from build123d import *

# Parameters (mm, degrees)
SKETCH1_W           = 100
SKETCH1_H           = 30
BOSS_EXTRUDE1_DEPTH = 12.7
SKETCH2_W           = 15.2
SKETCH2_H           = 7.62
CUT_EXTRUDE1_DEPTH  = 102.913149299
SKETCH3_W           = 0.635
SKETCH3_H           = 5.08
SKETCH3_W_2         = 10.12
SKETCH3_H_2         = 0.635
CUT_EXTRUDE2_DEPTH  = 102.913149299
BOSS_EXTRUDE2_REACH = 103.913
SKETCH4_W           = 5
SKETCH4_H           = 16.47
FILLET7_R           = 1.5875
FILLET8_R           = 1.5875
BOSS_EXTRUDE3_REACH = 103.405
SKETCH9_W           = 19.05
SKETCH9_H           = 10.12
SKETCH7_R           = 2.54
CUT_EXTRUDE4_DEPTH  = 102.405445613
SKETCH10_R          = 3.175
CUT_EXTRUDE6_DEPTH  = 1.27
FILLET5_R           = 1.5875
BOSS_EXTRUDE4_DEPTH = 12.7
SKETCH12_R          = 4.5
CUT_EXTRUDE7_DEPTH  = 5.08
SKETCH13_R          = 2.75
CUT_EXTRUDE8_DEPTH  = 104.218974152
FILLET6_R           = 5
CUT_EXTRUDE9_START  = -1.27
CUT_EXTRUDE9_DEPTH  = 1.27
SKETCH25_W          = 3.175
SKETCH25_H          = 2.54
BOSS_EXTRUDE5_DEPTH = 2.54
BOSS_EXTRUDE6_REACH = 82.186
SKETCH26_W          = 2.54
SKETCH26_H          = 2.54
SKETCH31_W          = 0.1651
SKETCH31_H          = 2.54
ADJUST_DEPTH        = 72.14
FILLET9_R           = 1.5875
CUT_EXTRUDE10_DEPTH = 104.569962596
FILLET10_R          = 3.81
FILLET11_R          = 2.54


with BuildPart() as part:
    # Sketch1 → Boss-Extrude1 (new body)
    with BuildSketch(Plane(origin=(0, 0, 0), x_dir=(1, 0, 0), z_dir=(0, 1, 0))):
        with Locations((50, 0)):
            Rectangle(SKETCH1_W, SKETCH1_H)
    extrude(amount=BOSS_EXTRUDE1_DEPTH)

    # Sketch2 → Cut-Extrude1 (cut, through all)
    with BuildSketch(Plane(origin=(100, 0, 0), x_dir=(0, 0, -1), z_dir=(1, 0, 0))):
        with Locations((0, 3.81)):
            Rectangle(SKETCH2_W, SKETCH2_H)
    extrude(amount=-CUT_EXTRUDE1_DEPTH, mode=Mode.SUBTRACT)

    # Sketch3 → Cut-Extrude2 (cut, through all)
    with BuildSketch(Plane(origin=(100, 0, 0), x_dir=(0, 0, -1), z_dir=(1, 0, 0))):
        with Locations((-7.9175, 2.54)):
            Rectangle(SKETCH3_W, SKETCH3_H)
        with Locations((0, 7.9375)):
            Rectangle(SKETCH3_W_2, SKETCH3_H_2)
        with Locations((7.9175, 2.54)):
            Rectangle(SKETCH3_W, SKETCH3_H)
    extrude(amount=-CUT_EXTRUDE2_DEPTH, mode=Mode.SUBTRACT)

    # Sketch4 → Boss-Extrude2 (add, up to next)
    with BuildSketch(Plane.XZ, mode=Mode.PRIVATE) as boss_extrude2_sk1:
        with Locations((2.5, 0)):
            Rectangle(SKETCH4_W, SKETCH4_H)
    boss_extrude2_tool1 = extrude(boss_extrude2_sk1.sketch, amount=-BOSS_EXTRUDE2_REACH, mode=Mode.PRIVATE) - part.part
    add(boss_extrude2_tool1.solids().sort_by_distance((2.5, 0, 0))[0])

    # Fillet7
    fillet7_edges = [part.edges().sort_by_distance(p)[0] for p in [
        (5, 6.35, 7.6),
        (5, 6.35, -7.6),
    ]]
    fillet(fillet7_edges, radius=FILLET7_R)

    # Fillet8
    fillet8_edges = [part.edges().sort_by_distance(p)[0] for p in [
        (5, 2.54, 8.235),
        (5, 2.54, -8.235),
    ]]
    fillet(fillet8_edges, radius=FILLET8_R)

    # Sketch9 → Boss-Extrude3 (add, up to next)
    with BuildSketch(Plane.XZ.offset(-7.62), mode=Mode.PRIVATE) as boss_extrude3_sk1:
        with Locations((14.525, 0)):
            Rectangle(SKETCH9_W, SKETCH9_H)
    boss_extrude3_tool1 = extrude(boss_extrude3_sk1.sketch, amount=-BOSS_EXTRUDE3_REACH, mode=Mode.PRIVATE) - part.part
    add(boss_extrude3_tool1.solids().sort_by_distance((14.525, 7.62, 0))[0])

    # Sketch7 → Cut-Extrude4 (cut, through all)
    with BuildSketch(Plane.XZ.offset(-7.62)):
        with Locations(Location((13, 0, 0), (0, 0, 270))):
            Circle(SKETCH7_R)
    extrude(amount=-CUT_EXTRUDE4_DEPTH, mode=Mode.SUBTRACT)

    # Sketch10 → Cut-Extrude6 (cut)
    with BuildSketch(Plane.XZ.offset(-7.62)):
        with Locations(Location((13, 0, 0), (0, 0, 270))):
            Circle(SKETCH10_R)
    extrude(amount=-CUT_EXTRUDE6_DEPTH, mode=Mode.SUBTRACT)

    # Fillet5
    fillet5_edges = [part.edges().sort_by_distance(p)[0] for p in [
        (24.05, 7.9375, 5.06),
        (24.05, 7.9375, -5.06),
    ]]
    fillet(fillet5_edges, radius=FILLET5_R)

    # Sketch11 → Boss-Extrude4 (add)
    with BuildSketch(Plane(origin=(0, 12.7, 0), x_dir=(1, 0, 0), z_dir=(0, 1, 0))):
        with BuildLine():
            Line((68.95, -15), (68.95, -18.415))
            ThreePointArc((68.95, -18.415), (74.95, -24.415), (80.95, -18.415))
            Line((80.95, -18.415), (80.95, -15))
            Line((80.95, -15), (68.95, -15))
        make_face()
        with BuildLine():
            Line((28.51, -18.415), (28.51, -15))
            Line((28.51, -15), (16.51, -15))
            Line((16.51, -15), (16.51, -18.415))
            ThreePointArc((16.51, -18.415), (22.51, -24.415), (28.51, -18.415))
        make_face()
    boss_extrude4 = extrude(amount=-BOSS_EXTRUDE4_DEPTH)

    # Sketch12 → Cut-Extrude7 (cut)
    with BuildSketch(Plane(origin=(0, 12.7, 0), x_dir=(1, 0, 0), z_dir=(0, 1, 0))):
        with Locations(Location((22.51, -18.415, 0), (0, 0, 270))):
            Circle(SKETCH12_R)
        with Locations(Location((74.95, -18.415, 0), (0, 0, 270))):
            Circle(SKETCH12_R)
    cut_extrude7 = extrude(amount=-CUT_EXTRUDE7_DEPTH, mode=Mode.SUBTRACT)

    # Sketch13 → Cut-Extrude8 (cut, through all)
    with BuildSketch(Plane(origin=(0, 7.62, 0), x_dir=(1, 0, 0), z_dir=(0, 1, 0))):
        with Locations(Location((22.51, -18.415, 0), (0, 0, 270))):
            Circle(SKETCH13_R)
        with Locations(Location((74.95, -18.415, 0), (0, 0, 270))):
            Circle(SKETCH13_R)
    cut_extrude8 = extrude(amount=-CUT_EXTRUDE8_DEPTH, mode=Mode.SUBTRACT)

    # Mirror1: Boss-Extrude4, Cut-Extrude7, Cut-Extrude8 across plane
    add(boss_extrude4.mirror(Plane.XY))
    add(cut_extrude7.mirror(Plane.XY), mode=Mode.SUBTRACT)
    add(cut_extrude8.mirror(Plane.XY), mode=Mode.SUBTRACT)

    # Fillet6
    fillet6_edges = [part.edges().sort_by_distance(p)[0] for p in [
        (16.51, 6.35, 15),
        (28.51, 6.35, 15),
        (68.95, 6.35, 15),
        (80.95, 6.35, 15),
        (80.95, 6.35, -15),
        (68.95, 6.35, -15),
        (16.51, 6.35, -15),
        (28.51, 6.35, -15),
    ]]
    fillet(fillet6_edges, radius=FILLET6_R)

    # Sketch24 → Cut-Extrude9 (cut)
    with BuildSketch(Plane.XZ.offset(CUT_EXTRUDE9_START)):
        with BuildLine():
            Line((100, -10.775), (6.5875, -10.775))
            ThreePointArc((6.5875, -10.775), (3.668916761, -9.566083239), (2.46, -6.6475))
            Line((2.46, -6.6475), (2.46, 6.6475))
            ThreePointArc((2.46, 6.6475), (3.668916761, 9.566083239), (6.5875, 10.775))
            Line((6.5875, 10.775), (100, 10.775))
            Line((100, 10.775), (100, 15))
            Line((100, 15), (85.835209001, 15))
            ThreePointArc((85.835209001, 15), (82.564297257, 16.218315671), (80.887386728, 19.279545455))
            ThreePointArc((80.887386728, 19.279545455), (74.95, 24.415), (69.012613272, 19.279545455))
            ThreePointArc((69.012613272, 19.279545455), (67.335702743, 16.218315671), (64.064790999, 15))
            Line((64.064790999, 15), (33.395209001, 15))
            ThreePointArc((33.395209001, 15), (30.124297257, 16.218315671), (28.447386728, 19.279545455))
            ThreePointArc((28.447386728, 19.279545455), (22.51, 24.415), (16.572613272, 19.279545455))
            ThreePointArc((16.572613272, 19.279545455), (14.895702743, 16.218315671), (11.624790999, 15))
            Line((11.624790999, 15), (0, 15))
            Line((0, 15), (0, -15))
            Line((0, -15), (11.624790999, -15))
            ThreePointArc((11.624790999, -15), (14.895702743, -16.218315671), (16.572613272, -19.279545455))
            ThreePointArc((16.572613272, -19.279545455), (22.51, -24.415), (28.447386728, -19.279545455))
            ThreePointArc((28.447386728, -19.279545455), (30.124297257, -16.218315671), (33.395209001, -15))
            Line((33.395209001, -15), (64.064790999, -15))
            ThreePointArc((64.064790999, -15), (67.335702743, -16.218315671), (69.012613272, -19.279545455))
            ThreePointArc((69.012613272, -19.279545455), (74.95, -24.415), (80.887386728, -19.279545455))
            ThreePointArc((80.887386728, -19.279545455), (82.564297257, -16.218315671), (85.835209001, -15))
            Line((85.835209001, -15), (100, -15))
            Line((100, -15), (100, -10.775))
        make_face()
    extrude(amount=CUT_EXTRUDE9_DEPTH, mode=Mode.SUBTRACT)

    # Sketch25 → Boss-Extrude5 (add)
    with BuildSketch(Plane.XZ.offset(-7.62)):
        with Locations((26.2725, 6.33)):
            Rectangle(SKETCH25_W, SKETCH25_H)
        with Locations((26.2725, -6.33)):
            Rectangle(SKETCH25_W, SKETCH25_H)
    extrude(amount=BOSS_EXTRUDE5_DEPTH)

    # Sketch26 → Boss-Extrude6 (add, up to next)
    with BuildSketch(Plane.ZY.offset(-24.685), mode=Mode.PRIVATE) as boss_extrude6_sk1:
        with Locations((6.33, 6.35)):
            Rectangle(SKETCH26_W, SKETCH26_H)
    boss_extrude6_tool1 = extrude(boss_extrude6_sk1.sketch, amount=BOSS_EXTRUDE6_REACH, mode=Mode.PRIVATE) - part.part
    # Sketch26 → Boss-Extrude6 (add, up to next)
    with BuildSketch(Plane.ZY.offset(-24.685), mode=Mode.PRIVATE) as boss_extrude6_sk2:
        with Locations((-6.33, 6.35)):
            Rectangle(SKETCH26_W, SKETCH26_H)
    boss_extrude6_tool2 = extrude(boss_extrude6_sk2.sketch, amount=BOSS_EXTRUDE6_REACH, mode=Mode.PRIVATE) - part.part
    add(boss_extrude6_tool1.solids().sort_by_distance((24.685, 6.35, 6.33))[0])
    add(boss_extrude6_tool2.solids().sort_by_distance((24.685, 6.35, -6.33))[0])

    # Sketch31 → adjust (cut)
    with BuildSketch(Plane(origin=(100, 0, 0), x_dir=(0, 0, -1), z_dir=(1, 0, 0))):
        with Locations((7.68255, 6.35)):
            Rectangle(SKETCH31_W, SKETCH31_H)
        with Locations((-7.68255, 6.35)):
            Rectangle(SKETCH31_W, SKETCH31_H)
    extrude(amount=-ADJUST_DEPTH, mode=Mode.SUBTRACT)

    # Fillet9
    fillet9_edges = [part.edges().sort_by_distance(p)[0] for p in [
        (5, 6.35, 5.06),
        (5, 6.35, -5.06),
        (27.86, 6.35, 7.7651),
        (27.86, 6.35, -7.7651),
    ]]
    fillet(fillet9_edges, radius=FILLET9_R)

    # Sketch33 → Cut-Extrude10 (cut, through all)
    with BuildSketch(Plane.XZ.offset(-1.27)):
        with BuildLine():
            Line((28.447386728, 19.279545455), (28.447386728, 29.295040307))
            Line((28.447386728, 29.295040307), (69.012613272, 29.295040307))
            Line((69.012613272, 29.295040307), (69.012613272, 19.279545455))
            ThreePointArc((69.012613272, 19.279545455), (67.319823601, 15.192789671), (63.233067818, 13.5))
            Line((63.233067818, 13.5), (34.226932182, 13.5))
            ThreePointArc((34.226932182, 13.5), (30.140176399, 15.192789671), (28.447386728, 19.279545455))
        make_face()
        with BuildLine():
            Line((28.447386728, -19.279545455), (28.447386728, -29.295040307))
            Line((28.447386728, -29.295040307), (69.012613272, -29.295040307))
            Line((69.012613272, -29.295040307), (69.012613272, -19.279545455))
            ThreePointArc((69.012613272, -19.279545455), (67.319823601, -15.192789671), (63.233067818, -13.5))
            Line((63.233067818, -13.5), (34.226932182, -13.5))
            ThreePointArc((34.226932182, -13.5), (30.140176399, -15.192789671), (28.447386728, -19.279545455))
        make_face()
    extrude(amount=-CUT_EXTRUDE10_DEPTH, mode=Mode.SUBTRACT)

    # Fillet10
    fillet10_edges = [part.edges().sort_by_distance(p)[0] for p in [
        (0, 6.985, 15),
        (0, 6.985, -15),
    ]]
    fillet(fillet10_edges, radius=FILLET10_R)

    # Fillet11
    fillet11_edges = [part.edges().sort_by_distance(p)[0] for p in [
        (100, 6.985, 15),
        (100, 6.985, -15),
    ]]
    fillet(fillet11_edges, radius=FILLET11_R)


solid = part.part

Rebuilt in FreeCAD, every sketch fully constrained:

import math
import FreeCAD as App
import Part
import Sketcher

V = App.Vector
Q = App.Units.Quantity


def edges_at(feature, points):
    """Names of the edges that pass closest to the given points."""
    edges = feature.Shape.Edges
    near = lambda p: min(range(len(edges)), key=lambda i: edges[i].distToShape(Part.Vertex(*p))[0])
    return sorted({f"Edge{near(p) + 1}" for p in points})

doc = App.newDocument("Part")
params = doc.addObject("Spreadsheet::Sheet", "Params")
for row, (alias, value) in enumerate([
    ("pad1_length", "0.5 in"),
    ("sketch2_width", "0.3 in"),
    ("sketch3_width", "0.2 in"),
    ("sketch3_width2", "0.025 in"),
    ("fillet_radius", "0.0625 in"),
    ("fillet2_radius", "0.0625 in"),
    ("sketch5_width", "0.75 in"),
    ("sketch6_diameter", "0.2 in"),
    ("sketch7_diameter", "0.25 in"),
    ("pocket4_length", "0.05 in"),
    ("fillet3_radius", "0.0625 in"),
    ("pad4_length", "0.5 in"),
    ("pocket5_length", "0.2 in"),
    ("fillet4_radius", "5 mm"),
    ("pocket7_length", "0.05 in"),
    ("sketch12_height", "0.1 in"),
    ("sketch12_width", "0.125 in"),
    ("pad5_length", "0.1 in"),
    ("sketch13_width", "0.1 in"),
    ("sketch14_width", "0.1 in"),
    ("sketch15_width", "0.1 in"),
    ("pocket8_length", "72.14 mm"),
    ("fillet5_radius", "0.0625 in"),
    ("fillet6_radius", "0.15 in"),
    ("fillet7_radius", "0.1 in"),
], start=1):
    params.set(f"A{row}", alias)
    params.set(f"B{row}", "=" + value)
    params.setAlias(f"B{row}", alias)

body = doc.addObject("PartDesign::Body", "Body")

sketch1 = doc.addObject("Sketcher::SketchObject", "Sketch")
body.addObject(sketch1)
sketch1.AttachmentSupport = (doc.XZ_Plane, [""])
sketch1.MapMode = "FlatFace"
sketch1.addGeometry([
    Part.LineSegment(V(0, -15, 0), V(0, 15, 0)),
    Part.LineSegment(V(0, 15, 0), V(100, 15, 0)),
    Part.LineSegment(V(100, 15, 0), V(100, -15, 0)),
    Part.LineSegment(V(100, -15, 0), V(0, -15, 0)),
], False)
sketch1.addConstraint([
    Sketcher.Constraint("Coincident", 0, 2, 1, 1),
    Sketcher.Constraint("Coincident", 1, 2, 2, 1),
    Sketcher.Constraint("Coincident", 2, 2, 3, 1),
    Sketcher.Constraint("Coincident", 3, 2, 0, 1),
    Sketcher.Constraint("Vertical", 0),
    Sketcher.Constraint("Horizontal", 1),
    Sketcher.Constraint("Vertical", 2),
    Sketcher.Constraint("Horizontal", 3),
    Sketcher.Constraint("Symmetric", 0, 2, 3, 2, -1, 1),
    Sketcher.Constraint("DistanceX", 1, 1, 1, 2, Q("100 mm")),
    Sketcher.Constraint("DistanceY", 0, 1, 0, 2, Q("30 mm")),
])
pad1 = doc.addObject("PartDesign::Pad", "Pad")
body.addObject(pad1)
pad1.Profile = sketch1
pad1.setExpression("Length", "Params.pad1_length")
pad1.Reversed = True

sketch2 = doc.addObject("Sketcher::SketchObject", "Sketch001")
body.addObject(sketch2)
sketch2.AttachmentSupport = (doc.YZ_Plane, [""])
sketch2.MapMode = "FlatFace"
sketch2.AttachmentOffset = App.Placement(V(0, 0, 100), App.Rotation())
sketch2.addGeometry([
    Part.LineSegment(V(8, 8, 0), V(0, 8, 0)),
    Part.LineSegment(V(0, 8, 0), V(0, -8, 0)),
    Part.LineSegment(V(0, -8, 0), V(8, -8, 0)),
    Part.LineSegment(V(8, -8, 0), V(8, 8, 0)),
], False)
sketch2.addConstraint([
    Sketcher.Constraint("Coincident", 0, 2, 1, 1),
    Sketcher.Constraint("Coincident", 1, 2, 2, 1),
    Sketcher.Constraint("Coincident", 2, 2, 3, 1),
    Sketcher.Constraint("Coincident", 3, 2, 0, 1),
    Sketcher.Constraint("Horizontal", 0),
    Sketcher.Constraint("Vertical", 1),
    Sketcher.Constraint("Horizontal", 2),
    Sketcher.Constraint("Vertical", 3),
    Sketcher.Constraint("Symmetric", 0, 2, 1, 2, -1, 1),
    Sketcher.Constraint("DistanceX", 0, 2, 0, 1, Q("0.3 in")),
    Sketcher.Constraint("DistanceY", 1, 2, 1, 1, Q("15.2 mm")),
])
sketch2.setExpression("Constraints[9]", "Params.sketch2_width")
pocket1 = doc.addObject("PartDesign::Pocket", "Pocket")
body.addObject(pocket1)
pocket1.Profile = sketch2
pocket1.Type = "ThroughAll"

sketch3 = doc.addObject("Sketcher::SketchObject", "Sketch002")
body.addObject(sketch3)
sketch3.AttachmentSupport = (doc.YZ_Plane, [""])
sketch3.MapMode = "FlatFace"
sketch3.AttachmentOffset = App.Placement(V(0, 0, 100), App.Rotation())
sketch3.addGeometry([
    Part.LineSegment(V(5.1, 8.2, 0), V(0, 8.2, 0)),
    Part.LineSegment(V(0, 8.2, 0), V(0, 7.6, 0)),
    Part.LineSegment(V(0, 7.6, 0), V(5.1, 7.6, 0)),
    Part.LineSegment(V(5.1, 7.6, 0), V(5.1, 8.2, 0)),
    Part.LineSegment(V(8.3, 5.1, 0), V(7.6, 5.1, 0)),
    Part.LineSegment(V(7.6, 5.1, 0), V(7.6, -5.1, 0)),
    Part.LineSegment(V(7.6, -5.1, 0), V(8.3, -5.1, 0)),
    Part.LineSegment(V(8.3, -5.1, 0), V(8.3, 5.1, 0)),
    Part.LineSegment(V(5.1, -7.6, 0), V(0, -7.6, 0)),
    Part.LineSegment(V(0, -7.6, 0), V(0, -8.2, 0)),
    Part.LineSegment(V(0, -8.2, 0), V(5.1, -8.2, 0)),
    Part.LineSegment(V(5.1, -8.2, 0), V(5.1, -7.6, 0)),
], False)
sketch3.addConstraint([
    Sketcher.Constraint("Coincident", 0, 2, 1, 1),
    Sketcher.Constraint("Coincident", 1, 2, 2, 1),
    Sketcher.Constraint("Coincident", 2, 2, 3, 1),
    Sketcher.Constraint("Coincident", 3, 2, 0, 1),
    Sketcher.Constraint("Coincident", 4, 2, 5, 1),
    Sketcher.Constraint("Coincident", 5, 2, 6, 1),
    Sketcher.Constraint("Coincident", 6, 2, 7, 1),
    Sketcher.Constraint("Coincident", 7, 2, 4, 1),
    Sketcher.Constraint("Coincident", 8, 2, 9, 1),
    Sketcher.Constraint("Coincident", 9, 2, 10, 1),
    Sketcher.Constraint("Coincident", 10, 2, 11, 1),
    Sketcher.Constraint("Coincident", 11, 2, 8, 1),
    Sketcher.Constraint("Horizontal", 0),
    Sketcher.Constraint("Vertical", 1),
    Sketcher.Constraint("Horizontal", 2),
    Sketcher.Constraint("Vertical", 3),
    Sketcher.Constraint("Horizontal", 4),
    Sketcher.Constraint("Vertical", 5),
    Sketcher.Constraint("Horizontal", 6),
    Sketcher.Constraint("Vertical", 7),
    Sketcher.Constraint("Horizontal", 8),
    Sketcher.Constraint("Vertical", 9),
    Sketcher.Constraint("Horizontal", 10),
    Sketcher.Constraint("Vertical", 11),
    Sketcher.Constraint("Symmetric", 1, 2, 8, 2, -1, 1),
    Sketcher.Constraint("Symmetric", 0, 2, 9, 2, -1),
    Sketcher.Constraint("Vertical", 3, 2, 10, 2),
    Sketcher.Constraint("Equal", 6, 1),
    Sketcher.Constraint("DistanceX", 0, 2, 0, 1, Q("0.2 in")),
    Sketcher.Constraint("DistanceX", -1, 1, 4, 2, Q("0.3 in")),
    Sketcher.Constraint("DistanceY", 4, 2, 2, 2, Q("0.1 in")),
    Sketcher.Constraint("DistanceY", 8, 2, 5, 2, Q("0.1 in")),
    Sketcher.Constraint("DistanceX", 4, 2, 4, 1, Q("0.025 in")),
    Sketcher.Constraint("DistanceY", 5, 2, 5, 1, Q("10.12 mm")),
])
sketch3.setExpression("Constraints[28]", "Params.sketch3_width")
sketch3.setExpression("Constraints[32]", "Params.sketch3_width2")
pocket2 = doc.addObject("PartDesign::Pocket", "Pocket001")
body.addObject(pocket2)
pocket2.Profile = sketch3
pocket2.Type = "ThroughAll"

sketch4 = doc.addObject("Sketcher::SketchObject", "Sketch003")
body.addObject(sketch4)
sketch4.AttachmentSupport = (doc.XZ_Plane, [""])
sketch4.MapMode = "FlatFace"
sketch4.addGeometry([
    Part.LineSegment(V(0, 8, 0), V(0, -8, 0)),
    Part.LineSegment(V(0, -8, 0), V(5, -8, 0)),
    Part.LineSegment(V(5, -8, 0), V(5, 8, 0)),
    Part.LineSegment(V(5, 8, 0), V(0, 8, 0)),
], False)
sketch4.addConstraint([
    Sketcher.Constraint("Coincident", 0, 2, 1, 1),
    Sketcher.Constraint("Coincident", 1, 2, 2, 1),
    Sketcher.Constraint("Coincident", 2, 2, 3, 1),
    Sketcher.Constraint("Coincident", 3, 2, 0, 1),
    Sketcher.Constraint("Vertical", 0),
    Sketcher.Constraint("Horizontal", 1),
    Sketcher.Constraint("Vertical", 2),
    Sketcher.Constraint("Horizontal", 3),
    Sketcher.Constraint("Symmetric", 0, 2, 3, 2, -1, 1),
    Sketcher.Constraint("DistanceX", 1, 1, 1, 2, Q("5 mm")),
    Sketcher.Constraint("DistanceY", 0, 2, 0, 1, Q("16.47 mm")),
])
pad2 = doc.addObject("PartDesign::Pad", "Pad001")
body.addObject(pad2)
pad2.Profile = sketch4
pad2.Type = "UpToFirst"
pad2.Reversed = True
doc.recompute()

fillet = doc.addObject("PartDesign::Fillet", "Fillet")
body.addObject(fillet)
fillet.Base = (pad2, edges_at(pad2, [(5, 6.35, 7.6), (5, 6.35, -7.6)]))
fillet.setExpression("Radius", "Params.fillet_radius")
doc.recompute()

fillet2 = doc.addObject("PartDesign::Fillet", "Fillet001")
body.addObject(fillet2)
fillet2.Base = (fillet, edges_at(fillet, [(5, 2.54, 8.235), (5, 2.54, -8.235)]))
fillet2.setExpression("Radius", "Params.fillet2_radius")

sketch5 = doc.addObject("Sketcher::SketchObject", "Sketch004")
body.addObject(sketch5)
sketch5.AttachmentSupport = (doc.XZ_Plane, [""])
sketch5.MapMode = "FlatFace"
sketch5.AttachmentOffset = App.Placement(V(0, 0, -0.3 * 25.4), App.Rotation())
sketch5.addGeometry([
    Part.LineSegment(V(5, 5, 0), V(5, -5, 0)),
    Part.LineSegment(V(5, -5, 0), V(24, -5, 0)),
    Part.LineSegment(V(24, -5, 0), V(24, 5, 0)),
    Part.LineSegment(V(24, 5, 0), V(5, 5, 0)),
], False)
sketch5.addConstraint([
    Sketcher.Constraint("Coincident", 0, 2, 1, 1),
    Sketcher.Constraint("Coincident", 1, 2, 2, 1),
    Sketcher.Constraint("Coincident", 2, 2, 3, 1),
    Sketcher.Constraint("Coincident", 3, 2, 0, 1),
    Sketcher.Constraint("Vertical", 0),
    Sketcher.Constraint("Horizontal", 1),
    Sketcher.Constraint("Vertical", 2),
    Sketcher.Constraint("Horizontal", 3),
    Sketcher.Constraint("DistanceX", 1, 1, 1, 2, Q("0.75 in")),
    Sketcher.Constraint("DistanceY", 0, 2, 0, 1, Q("10.12 mm")),
    Sketcher.Constraint("DistanceX", -1, 1, 0, 2, Q("5 mm")),
    Sketcher.Constraint("DistanceY", 0, 2, -1, 1, Q("5.06 mm")),
])
sketch5.setExpression("Constraints[8]", "Params.sketch5_width")
pad3 = doc.addObject("PartDesign::Pad", "Pad002")
body.addObject(pad3)
pad3.Profile = sketch5
pad3.Type = "UpToFirst"
pad3.Reversed = True

sketch6 = doc.addObject("Sketcher::SketchObject", "Sketch005")
body.addObject(sketch6)
sketch6.AttachmentSupport = (doc.XZ_Plane, [""])
sketch6.MapMode = "FlatFace"
sketch6.AttachmentOffset = App.Placement(V(0, 0, -0.3 * 25.4), App.Rotation())
sketch6.addGeometry(Part.Circle(V(13, 0, 0), V(0, 0, 1), 2.5), False)
sketch6.addConstraint([
    Sketcher.Constraint("PointOnObject", 0, 3, -1),
    Sketcher.Constraint("Diameter", 0, Q("0.2 in")),
    Sketcher.Constraint("DistanceX", -1, 1, 0, 3, Q("13 mm")),
])
sketch6.setExpression("Constraints[1]", "Params.sketch6_diameter")
pocket3 = doc.addObject("PartDesign::Pocket", "Pocket002")
body.addObject(pocket3)
pocket3.Profile = sketch6
pocket3.Type = "ThroughAll"

sketch7 = doc.addObject("Sketcher::SketchObject", "Sketch006")
body.addObject(sketch7)
sketch7.AttachmentSupport = (doc.XZ_Plane, [""])
sketch7.MapMode = "FlatFace"
sketch7.AttachmentOffset = App.Placement(V(0, 0, -0.3 * 25.4), App.Rotation())
sketch7.addGeometry(Part.Circle(V(13, 0, 0), V(0, 0, 1), 3.2), False)
sketch7.addConstraint([
    Sketcher.Constraint("PointOnObject", 0, 3, -1),
    Sketcher.Constraint("Diameter", 0, Q("0.25 in")),
    Sketcher.Constraint("DistanceX", -1, 1, 0, 3, Q("13 mm")),
])
sketch7.setExpression("Constraints[1]", "Params.sketch7_diameter")
pocket4 = doc.addObject("PartDesign::Pocket", "Pocket003")
body.addObject(pocket4)
pocket4.Profile = sketch7
pocket4.setExpression("Length", "Params.pocket4_length")
doc.recompute()

fillet3 = doc.addObject("PartDesign::Fillet", "Fillet002")
body.addObject(fillet3)
fillet3.Base = (pocket4, edges_at(pocket4, [(24.05, 7.938, 5.06), (24.05, 7.938, -5.06)]))
fillet3.setExpression("Radius", "Params.fillet3_radius")

sketch8 = doc.addObject("Sketcher::SketchObject", "Sketch007")
body.addObject(sketch8)
sketch8.AttachmentSupport = (doc.XZ_Plane, [""])
sketch8.MapMode = "FlatFace"
sketch8.AttachmentOffset = App.Placement(V(0, 0, -0.5 * 25.4), App.Rotation())
sketch8.addGeometry([
    Part.LineSegment(V(69, 15, 0), V(69, 18.4, 0)),
    Part.ArcOfCircle(Part.Circle(V(75, 18.4, 0), V(0, 0, 1), 6), math.radians(0), math.radians(180)),
    Part.LineSegment(V(81, 18.4, 0), V(81, 15, 0)),
    Part.LineSegment(V(81, 15, 0), V(69, 15, 0)),
    Part.LineSegment(V(28.5, 18.4, 0), V(28.5, 15, 0)),
    Part.LineSegment(V(28.5, 15, 0), V(16.5, 15, 0)),
    Part.LineSegment(V(16.5, 15, 0), V(16.5, 18.4, 0)),
    Part.ArcOfCircle(Part.Circle(V(22.5, 18.4, 0), V(0, 0, 1), 6), math.radians(0), math.radians(180)),
], False)
sketch8.addConstraint([
    Sketcher.Constraint("Tangent", 0, 2, 1, 2),
    Sketcher.Constraint("Tangent", 1, 1, 2, 1),
    Sketcher.Constraint("Coincident", 2, 2, 3, 1),
    Sketcher.Constraint("Coincident", 3, 2, 0, 1),
    Sketcher.Constraint("Coincident", 4, 2, 5, 1),
    Sketcher.Constraint("Coincident", 5, 2, 6, 1),
    Sketcher.Constraint("Tangent", 6, 2, 7, 2),
    Sketcher.Constraint("Tangent", 7, 1, 4, 1),
    Sketcher.Constraint("Vertical", 0),
    Sketcher.Constraint("Vertical", 2),
    Sketcher.Constraint("Horizontal", 3),
    Sketcher.Constraint("Vertical", 4),
    Sketcher.Constraint("Horizontal", 5),
    Sketcher.Constraint("Vertical", 6),
    Sketcher.Constraint("Equal", 1, 7),
    Sketcher.Constraint("Horizontal", 1, 3, 7, 3),
    Sketcher.Constraint("Horizontal", 3, 2, 4, 2),
    Sketcher.Constraint("DistanceX", -1, 1, 5, 2, Q("0.65 in")),
    Sketcher.Constraint("Radius", 1, Q("6 mm")),
    Sketcher.Constraint("DistanceY", -1, 1, 1, 3, Q("0.725 in")),
    Sketcher.Constraint("DistanceY", 0, 1, 0, 2, Q("3.415 mm")),
    Sketcher.Constraint("DistanceX", -1, 1, 1, 3, Q("74.95 mm")),
])
pad4 = doc.addObject("PartDesign::Pad", "Pad003")
body.addObject(pad4)
pad4.Profile = sketch8
pad4.setExpression("Length", "Params.pad4_length")

sketch9 = doc.addObject("Sketcher::SketchObject", "Sketch008")
body.addObject(sketch9)
sketch9.AttachmentSupport = (doc.XZ_Plane, [""])
sketch9.MapMode = "FlatFace"
sketch9.AttachmentOffset = App.Placement(V(0, 0, -0.5 * 25.4), App.Rotation())
sketch9.addGeometry([
    Part.Circle(V(22.5, 18.4, 0), V(0, 0, 1), 4.5),
    Part.Circle(V(75, 18.4, 0), V(0, 0, 1), 4.5),
], False)
sketch9.addConstraint([
    Sketcher.Constraint("Equal", 0, 1),
    Sketcher.Constraint("Horizontal", 0, 3, 1, 3),
    Sketcher.Constraint("Diameter", 0, Q("9 mm")),
    Sketcher.Constraint("DistanceY", -1, 1, 0, 3, Q("0.725 in")),
    Sketcher.Constraint("DistanceX", -1, 1, 0, 3, Q("22.51 mm")),
    Sketcher.Constraint("DistanceX", -1, 1, 1, 3, Q("74.95 mm")),
])
pocket5 = doc.addObject("PartDesign::Pocket", "Pocket004")
body.addObject(pocket5)
pocket5.Profile = sketch9
pocket5.setExpression("Length", "Params.pocket5_length")
pocket5.Reversed = True

sketch10 = doc.addObject("Sketcher::SketchObject", "Sketch009")
body.addObject(sketch10)
sketch10.AttachmentSupport = (doc.XZ_Plane, [""])
sketch10.MapMode = "FlatFace"
sketch10.AttachmentOffset = App.Placement(V(0, 0, -0.3 * 25.4), App.Rotation())
sketch10.addGeometry([
    Part.Circle(V(22.5, 18.4, 0), V(0, 0, 1), 2.8),
    Part.Circle(V(75, 18.4, 0), V(0, 0, 1), 2.8),
], False)
sketch10.addConstraint([
    Sketcher.Constraint("Equal", 0, 1),
    Sketcher.Constraint("Horizontal", 0, 3, 1, 3),
    Sketcher.Constraint("Diameter", 0, Q("5.5 mm")),
    Sketcher.Constraint("DistanceY", -1, 1, 0, 3, Q("0.725 in")),
    Sketcher.Constraint("DistanceX", -1, 1, 0, 3, Q("22.51 mm")),
    Sketcher.Constraint("DistanceX", -1, 1, 1, 3, Q("74.95 mm")),
])
pocket6 = doc.addObject("PartDesign::Pocket", "Pocket005")
body.addObject(pocket6)
pocket6.Profile = sketch10
pocket6.Type = "ThroughAll"
pocket6.Reversed = True
doc.recompute()

mirrored = doc.addObject("PartDesign::Mirrored", "Mirrored")
body.addObject(mirrored)
mirrored.Originals = [pad4, pocket5, pocket6]
mirrored.MirrorPlane = (doc.XY_Plane, [""])
body.Tip = mirrored
doc.recompute()

fillet4 = doc.addObject("PartDesign::Fillet", "Fillet003")
body.addObject(fillet4)
fillet4.Base = (mirrored, edges_at(mirrored, [
    (16.51, 6.35, 15),
    (28.51, 6.35, 15),
    (68.95, 6.35, 15),
    (80.95, 6.35, 15),
    (80.95, 6.35, -15),
    (68.95, 6.35, -15),
    (16.51, 6.35, -15),
    (28.51, 6.35, -15),
]))
fillet4.setExpression("Radius", "Params.fillet4_radius")

sketch11 = doc.addObject("Sketcher::SketchObject", "Sketch010")
body.addObject(sketch11)
sketch11.AttachmentSupport = (doc.XZ_Plane, [""])
sketch11.MapMode = "FlatFace"
sketch11.AttachmentOffset = App.Placement(V(0, 0, -0.05 * 25.4), App.Rotation())
sketch11.addGeometry([
    Part.LineSegment(V(100, -10.8, 0), V(6.6, -10.8, 0)),
    Part.ArcOfCircle(Part.Circle(V(6.6, -6.6, 0), V(0, 0, 1), 4.1), math.radians(-180), math.radians(-90)),
    Part.LineSegment(V(2.5, -6.6, 0), V(2.5, 6.6, 0)),
    Part.ArcOfCircle(Part.Circle(V(6.6, 6.6, 0), V(0, 0, 1), 4.1), math.radians(90), math.radians(180)),
    Part.LineSegment(V(6.6, 10.8, 0), V(100, 10.8, 0)),
    Part.LineSegment(V(100, 10.8, 0), V(100, 15, 0)),
    Part.LineSegment(V(100, 15, 0), V(85.8, 15, 0)),
    Part.ArcOfCircle(Part.Circle(V(85.8, 20, 0), V(0, 0, 1), 5), math.radians(-172), math.radians(-90)),
    Part.ArcOfCircle(Part.Circle(V(75, 18.4, 0), V(0, 0, 1), 6), math.radians(8), math.radians(172)),
    Part.ArcOfCircle(Part.Circle(V(64.1, 20, 0), V(0, 0, 1), 5), math.radians(-90), math.radians(-8)),
    Part.LineSegment(V(64.1, 15, 0), V(33.4, 15, 0)),
    Part.ArcOfCircle(Part.Circle(V(33.4, 20, 0), V(0, 0, 1), 5), math.radians(-172), math.radians(-90)),
    Part.ArcOfCircle(Part.Circle(V(22.5, 18.4, 0), V(0, 0, 1), 6), math.radians(8), math.radians(172)),
    Part.ArcOfCircle(Part.Circle(V(11.6, 20, 0), V(0, 0, 1), 5), math.radians(-90), math.radians(-8)),
    Part.LineSegment(V(11.6, 15, 0), V(0, 15, 0)),
    Part.LineSegment(V(0, 15, 0), V(0, -15, 0)),
    Part.LineSegment(V(0, -15, 0), V(11.6, -15, 0)),
    Part.ArcOfCircle(Part.Circle(V(11.6, -20, 0), V(0, 0, 1), 5), math.radians(8), math.radians(90)),
    Part.ArcOfCircle(Part.Circle(V(22.5, -18.4, 0), V(0, 0, 1), 6), math.radians(-172), math.radians(-8)),
    Part.ArcOfCircle(Part.Circle(V(33.4, -20, 0), V(0, 0, 1), 5), math.radians(90), math.radians(172)),
    Part.LineSegment(V(33.4, -15, 0), V(64.1, -15, 0)),
    Part.ArcOfCircle(Part.Circle(V(64.1, -20, 0), V(0, 0, 1), 5), math.radians(8), math.radians(90)),
    Part.ArcOfCircle(Part.Circle(V(75, -18.4, 0), V(0, 0, 1), 6), math.radians(-172), math.radians(-8)),
    Part.ArcOfCircle(Part.Circle(V(85.8, -20, 0), V(0, 0, 1), 5), math.radians(90), math.radians(172)),
    Part.LineSegment(V(85.8, -15, 0), V(100, -15, 0)),
    Part.LineSegment(V(100, -15, 0), V(100, -10.8, 0)),
], False)
sketch11.addConstraint([
    Sketcher.Constraint("Tangent", 0, 2, 1, 2),
    Sketcher.Constraint("Tangent", 1, 1, 2, 1),
    Sketcher.Constraint("Tangent", 2, 2, 3, 2),
    Sketcher.Constraint("Tangent", 3, 1, 4, 1),
    Sketcher.Constraint("Coincident", 4, 2, 5, 1),
    Sketcher.Constraint("Coincident", 5, 2, 6, 1),
    Sketcher.Constraint("Tangent", 6, 2, 7, 2),
    Sketcher.Constraint("Tangent", 7, 1, 8, 1),
    Sketcher.Constraint("Tangent", 8, 2, 9, 2),
    Sketcher.Constraint("Tangent", 9, 1, 10, 1),
    Sketcher.Constraint("Tangent", 10, 2, 11, 2),
    Sketcher.Constraint("Tangent", 11, 1, 12, 1),
    Sketcher.Constraint("Tangent", 12, 2, 13, 2),
    Sketcher.Constraint("Tangent", 13, 1, 14, 1),
    Sketcher.Constraint("Coincident", 14, 2, 15, 1),
    Sketcher.Constraint("Coincident", 15, 2, 16, 1),
    Sketcher.Constraint("Tangent", 16, 2, 17, 2),
    Sketcher.Constraint("Tangent", 17, 1, 18, 1),
    Sketcher.Constraint("Tangent", 18, 2, 19, 2),
    Sketcher.Constraint("Tangent", 19, 1, 20, 1),
    Sketcher.Constraint("Tangent", 20, 2, 21, 2),
    Sketcher.Constraint("Tangent", 21, 1, 22, 1),
    Sketcher.Constraint("Tangent", 22, 2, 23, 2),
    Sketcher.Constraint("Tangent", 23, 1, 24, 1),
    Sketcher.Constraint("Coincident", 24, 2, 25, 1),
    Sketcher.Constraint("Coincident", 25, 2, 0, 1),
    Sketcher.Constraint("Horizontal", 0),
    Sketcher.Constraint("Vertical", 2),
    Sketcher.Constraint("Horizontal", 4),
    Sketcher.Constraint("Vertical", 5),
    Sketcher.Constraint("Horizontal", 6),
    Sketcher.Constraint("Horizontal", 10),
    Sketcher.Constraint("Horizontal", 14),
    Sketcher.Constraint("Vertical", 15),
    Sketcher.Constraint("Horizontal", 16),
    Sketcher.Constraint("Horizontal", 20),
    Sketcher.Constraint("Horizontal", 24),
    Sketcher.Constraint("Vertical", 25),
    Sketcher.Constraint("Equal", 1, 3),
    Sketcher.Constraint("Equal", 7, 9),
    Sketcher.Constraint("Equal", 9, 11),
    Sketcher.Constraint("Equal", 8, 12),
    Sketcher.Constraint("Equal", 11, 13),
    Sketcher.Constraint("Equal", 13, 17),
    Sketcher.Constraint("Equal", 12, 18),
    Sketcher.Constraint("Equal", 17, 19),
    Sketcher.Constraint("Equal", 19, 21),
    Sketcher.Constraint("Equal", 18, 22),
    Sketcher.Constraint("Equal", 21, 23),
    Sketcher.Constraint("Symmetric", 14, 2, 15, 2, -1, 1),
    Sketcher.Constraint("Symmetric", 12, 3, 18, 3, -1),
    Sketcher.Constraint("Symmetric", 9, 3, 21, 3, -1),
    Sketcher.Constraint("Symmetric", 7, 3, 23, 3, -1),
    Sketcher.Constraint("Symmetric", 4, 2, 25, 2, -1),
    Sketcher.Constraint("Horizontal", 7, 3, 9, 3),
    Sketcher.Constraint("Horizontal", 8, 3, 12, 3),
    Sketcher.Constraint("Horizontal", 11, 3, 13, 3),
    Sketcher.Constraint("Radius", 1, Q("0.1625 in")),
    Sketcher.Constraint("Radius", 7, Q("5 mm")),
    Sketcher.Constraint("Radius", 8, Q("6 mm")),
    Sketcher.Constraint("DistanceY", 18, 3, 12, 3, Q("1.45 in")),
    Sketcher.Constraint("DistanceX", 0, 2, 0, 1, Q("93.4125 mm")),
    Sketcher.Constraint("DistanceY", 2, 1, 2, 2, Q("13.295 mm")),
    Sketcher.Constraint("DistanceY", 5, 1, 5, 2, Q("4.225 mm")),
    Sketcher.Constraint("DistanceX", 6, 2, 6, 1, Q("14.164791 mm")),
    Sketcher.Constraint("DistanceX", 10, 2, 10, 1, Q("30.669582 mm")),
    Sketcher.Constraint("DistanceX", 14, 2, 14, 1, Q("11.624791 mm")),
])
pocket7 = doc.addObject("PartDesign::Pocket", "Pocket006")
body.addObject(pocket7)
pocket7.Profile = sketch11
pocket7.setExpression("Length", "Params.pocket7_length")
pocket7.Reversed = True

sketch12 = doc.addObject("Sketcher::SketchObject", "Sketch011")
body.addObject(sketch12)
sketch12.AttachmentSupport = (doc.XZ_Plane, [""])
sketch12.MapMode = "FlatFace"
sketch12.AttachmentOffset = App.Placement(V(0, 0, -0.3 * 25.4), App.Rotation())
sketch12.addGeometry([
    Part.LineSegment(V(24.7, 7.6, 0), V(24.7, 5.1, 0)),
    Part.LineSegment(V(24.7, 5.1, 0), V(27.9, 5.1, 0)),
    Part.LineSegment(V(27.9, 5.1, 0), V(27.9, 7.6, 0)),
    Part.LineSegment(V(27.9, 7.6, 0), V(24.7, 7.6, 0)),
    Part.LineSegment(V(24.7, -5.1, 0), V(24.7, -7.6, 0)),
    Part.LineSegment(V(24.7, -7.6, 0), V(27.9, -7.6, 0)),
    Part.LineSegment(V(27.9, -7.6, 0), V(27.9, -5.1, 0)),
    Part.LineSegment(V(27.9, -5.1, 0), V(24.7, -5.1, 0)),
], False)
sketch12.addConstraint([
    Sketcher.Constraint("Coincident", 0, 2, 1, 1),
    Sketcher.Constraint("Coincident", 1, 2, 2, 1),
    Sketcher.Constraint("Coincident", 2, 2, 3, 1),
    Sketcher.Constraint("Coincident", 3, 2, 0, 1),
    Sketcher.Constraint("Coincident", 4, 2, 5, 1),
    Sketcher.Constraint("Coincident", 5, 2, 6, 1),
    Sketcher.Constraint("Coincident", 6, 2, 7, 1),
    Sketcher.Constraint("Coincident", 7, 2, 4, 1),
    Sketcher.Constraint("Vertical", 0),
    Sketcher.Constraint("Horizontal", 1),
    Sketcher.Constraint("Vertical", 2),
    Sketcher.Constraint("Horizontal", 3),
    Sketcher.Constraint("Vertical", 4),
    Sketcher.Constraint("Horizontal", 5),
    Sketcher.Constraint("Vertical", 6),
    Sketcher.Constraint("Horizontal", 7),
    Sketcher.Constraint("Symmetric", 3, 2, 4, 2, -1),
    Sketcher.Constraint("Symmetric", 1, 2, 6, 2, -1),
    Sketcher.Constraint("DistanceY", 0, 2, 0, 1, Q("0.1 in")),
    Sketcher.Constraint("DistanceX", 1, 1, 1, 2, Q("0.125 in")),
    Sketcher.Constraint("DistanceX", -1, 1, 0, 2, Q("24.685 mm")),
    Sketcher.Constraint("DistanceY", -1, 1, 0, 2, Q("5.06 mm")),
])
sketch12.setExpression("Constraints[18]", "Params.sketch12_height")
sketch12.setExpression("Constraints[19]", "Params.sketch12_width")
pad5 = doc.addObject("PartDesign::Pad", "Pad004")
body.addObject(pad5)
pad5.Profile = sketch12
pad5.setExpression("Length", "Params.pad5_length")

sketch13 = doc.addObject("Sketcher::SketchObject", "Sketch012")
body.addObject(sketch13)
sketch13.AttachmentSupport = (doc.YZ_Plane, [""])
sketch13.MapMode = "FlatFace"
sketch13.AttachmentOffset = App.Placement(V(0, 0, 24.685), App.Rotation())
sketch13.addGeometry([
    Part.LineSegment(V(7.6, 5.1, 0), V(5.1, 5.1, 0)),
    Part.LineSegment(V(5.1, 5.1, 0), V(5.1, 7.6, 0)),
    Part.LineSegment(V(5.1, 7.6, 0), V(7.6, 7.6, 0)),
    Part.LineSegment(V(7.6, 7.6, 0), V(7.6, 5.1, 0)),
], False)
sketch13.addConstraint([
    Sketcher.Constraint("Coincident", 0, 2, 1, 1),
    Sketcher.Constraint("Coincident", 1, 2, 2, 1),
    Sketcher.Constraint("Coincident", 2, 2, 3, 1),
    Sketcher.Constraint("Coincident", 3, 2, 0, 1),
    Sketcher.Constraint("Horizontal", 0),
    Sketcher.Constraint("Vertical", 1),
    Sketcher.Constraint("Horizontal", 2),
    Sketcher.Constraint("Vertical", 3),
    Sketcher.Constraint("Equal", 2, 1),
    Sketcher.Constraint("DistanceX", 0, 2, 0, 1, Q("0.1 in")),
    Sketcher.Constraint("DistanceX", -1, 1, 0, 2, Q("0.2 in")),
    Sketcher.Constraint("DistanceY", -1, 1, 0, 2, Q("5.06 mm")),
])
sketch13.setExpression("Constraints[9]", "Params.sketch13_width")
pad6 = doc.addObject("PartDesign::Pad", "Pad005")
body.addObject(pad6)
pad6.Profile = sketch13
pad6.Type = "UpToFirst"
pad6.Reversed = True

sketch14 = doc.addObject("Sketcher::SketchObject", "Sketch013")
body.addObject(sketch14)
sketch14.AttachmentSupport = (doc.YZ_Plane, [""])
sketch14.MapMode = "FlatFace"
sketch14.AttachmentOffset = App.Placement(V(0, 0, 24.685), App.Rotation())
sketch14.addGeometry([
    Part.LineSegment(V(7.6, -7.6, 0), V(5.1, -7.6, 0)),
    Part.LineSegment(V(5.1, -7.6, 0), V(5.1, -5.1, 0)),
    Part.LineSegment(V(5.1, -5.1, 0), V(7.6, -5.1, 0)),
    Part.LineSegment(V(7.6, -5.1, 0), V(7.6, -7.6, 0)),
], False)
sketch14.addConstraint([
    Sketcher.Constraint("Coincident", 0, 2, 1, 1),
    Sketcher.Constraint("Coincident", 1, 2, 2, 1),
    Sketcher.Constraint("Coincident", 2, 2, 3, 1),
    Sketcher.Constraint("Coincident", 3, 2, 0, 1),
    Sketcher.Constraint("Horizontal", 0),
    Sketcher.Constraint("Vertical", 1),
    Sketcher.Constraint("Horizontal", 2),
    Sketcher.Constraint("Vertical", 3),
    Sketcher.Constraint("Equal", 2, 1),
    Sketcher.Constraint("DistanceX", 0, 2, 0, 1, Q("0.1 in")),
    Sketcher.Constraint("DistanceX", -1, 1, 0, 2, Q("0.2 in")),
    Sketcher.Constraint("DistanceY", 0, 2, -1, 1, Q("7.6 mm")),
])
sketch14.setExpression("Constraints[9]", "Params.sketch14_width")
pad7 = doc.addObject("PartDesign::Pad", "Pad006")
body.addObject(pad7)
pad7.Profile = sketch14
pad7.Type = "UpToFirst"
pad7.Reversed = True

sketch15 = doc.addObject("Sketcher::SketchObject", "Sketch014")
body.addObject(sketch15)
sketch15.AttachmentSupport = (doc.YZ_Plane, [""])
sketch15.MapMode = "FlatFace"
sketch15.AttachmentOffset = App.Placement(V(0, 0, 100), App.Rotation())
sketch15.addGeometry([
    Part.LineSegment(V(7.62, -7.6, 0), V(5.08, -7.6, 0)),
    Part.LineSegment(V(5.08, -7.6, 0), V(5.08, -7.77, 0)),
    Part.LineSegment(V(5.08, -7.77, 0), V(7.62, -7.77, 0)),
    Part.LineSegment(V(7.62, -7.77, 0), V(7.62, -7.6, 0)),
    Part.LineSegment(V(7.62, 7.77, 0), V(5.08, 7.77, 0)),
    Part.LineSegment(V(5.08, 7.77, 0), V(5.08, 7.6, 0)),
    Part.LineSegment(V(5.08, 7.6, 0), V(7.62, 7.6, 0)),
    Part.LineSegment(V(7.62, 7.6, 0), V(7.62, 7.77, 0)),
], False)
sketch15.addConstraint([
    Sketcher.Constraint("Coincident", 0, 2, 1, 1),
    Sketcher.Constraint("Coincident", 1, 2, 2, 1),
    Sketcher.Constraint("Coincident", 2, 2, 3, 1),
    Sketcher.Constraint("Coincident", 3, 2, 0, 1),
    Sketcher.Constraint("Coincident", 4, 2, 5, 1),
    Sketcher.Constraint("Coincident", 5, 2, 6, 1),
    Sketcher.Constraint("Coincident", 6, 2, 7, 1),
    Sketcher.Constraint("Coincident", 7, 2, 4, 1),
    Sketcher.Constraint("Horizontal", 0),
    Sketcher.Constraint("Vertical", 1),
    Sketcher.Constraint("Horizontal", 2),
    Sketcher.Constraint("Vertical", 3),
    Sketcher.Constraint("Horizontal", 4),
    Sketcher.Constraint("Vertical", 5),
    Sketcher.Constraint("Horizontal", 6),
    Sketcher.Constraint("Vertical", 7),
    Sketcher.Constraint("Symmetric", 1, 2, 4, 2, -1),
    Sketcher.Constraint("Symmetric", 3, 2, 6, 2, -1),
    Sketcher.Constraint("DistanceX", 0, 2, 0, 1, Q("0.1 in")),
    Sketcher.Constraint("DistanceX", -1, 1, 0, 2, Q("0.2 in")),
    Sketcher.Constraint("DistanceY", 1, 2, 1, 1, Q("0.0065 in")),
    Sketcher.Constraint("DistanceY", 0, 2, -1, 1, Q("7.6 mm")),
])
sketch15.setExpression("Constraints[18]", "Params.sketch15_width")
pocket8 = doc.addObject("PartDesign::Pocket", "Pocket007")
body.addObject(pocket8)
pocket8.Profile = sketch15
pocket8.setExpression("Length", "Params.pocket8_length")
doc.recompute()

fillet5 = doc.addObject("PartDesign::Fillet", "Fillet004")
body.addObject(fillet5)
fillet5.Base = (pocket8, edges_at(pocket8, [
    (5, 6.35, 5.06),
    (5, 6.35, -5.06),
    (27.86, 6.35, 7.765),
    (27.86, 6.35, -7.765),
]))
fillet5.setExpression("Radius", "Params.fillet5_radius")

sketch16 = doc.addObject("Sketcher::SketchObject", "Sketch015")
body.addObject(sketch16)
sketch16.AttachmentSupport = (doc.XZ_Plane, [""])
sketch16.MapMode = "FlatFace"
sketch16.AttachmentOffset = App.Placement(V(0, 0, -0.05 * 25.4), App.Rotation())
sketch16.addGeometry([
    Part.LineSegment(V(28, 29, 0), V(28, 19, 0)),
    Part.ArcOfCircle(Part.Circle(V(34, 19, 0), V(0, 0, 1), 6), math.radians(180), math.radians(270)),
    Part.LineSegment(V(34, 14, 0), V(63, 14, 0)),
    Part.ArcOfCircle(Part.Circle(V(63, 19, 0), V(0, 0, 1), 6), math.radians(-90), math.radians(0)),
    Part.LineSegment(V(69, 19, 0), V(69, 29, 0)),
    Part.LineSegment(V(69, 29, 0), V(28, 29, 0)),
    Part.LineSegment(V(28, -19, 0), V(28, -29, 0)),
    Part.LineSegment(V(28, -29, 0), V(69, -29, 0)),
    Part.LineSegment(V(69, -29, 0), V(69, -19, 0)),
    Part.ArcOfCircle(Part.Circle(V(63, -19, 0), V(0, 0, 1), 6), math.radians(0), math.radians(90)),
    Part.LineSegment(V(63, -14, 0), V(34, -14, 0)),
    Part.ArcOfCircle(Part.Circle(V(34, -19, 0), V(0, 0, 1), 6), math.radians(90), math.radians(180)),
], False)
sketch16.addConstraint([
    Sketcher.Constraint("Tangent", 0, 2, 1, 1),
    Sketcher.Constraint("Tangent", 1, 2, 2, 1),
    Sketcher.Constraint("Tangent", 2, 2, 3, 1),
    Sketcher.Constraint("Tangent", 3, 2, 4, 1),
    Sketcher.Constraint("Coincident", 4, 2, 5, 1),
    Sketcher.Constraint("Coincident", 5, 2, 0, 1),
    Sketcher.Constraint("Coincident", 6, 2, 7, 1),
    Sketcher.Constraint("Coincident", 7, 2, 8, 1),
    Sketcher.Constraint("Tangent", 8, 2, 9, 1),
    Sketcher.Constraint("Tangent", 9, 2, 10, 1),
    Sketcher.Constraint("Tangent", 10, 2, 11, 1),
    Sketcher.Constraint("Tangent", 11, 2, 6, 1),
    Sketcher.Constraint("Vertical", 0),
    Sketcher.Constraint("Horizontal", 2),
    Sketcher.Constraint("Vertical", 4),
    Sketcher.Constraint("Horizontal", 5),
    Sketcher.Constraint("Vertical", 6),
    Sketcher.Constraint("Horizontal", 7),
    Sketcher.Constraint("Vertical", 8),
    Sketcher.Constraint("Horizontal", 10),
    Sketcher.Constraint("Equal", 1, 3),
    Sketcher.Constraint("Equal", 3, 9),
    Sketcher.Constraint("Equal", 9, 11),
    Sketcher.Constraint("Symmetric", 3, 3, 9, 3, -1),
    Sketcher.Constraint("Symmetric", 5, 2, 6, 2, -1),
    Sketcher.Constraint("Radius", 1, Q("5.779545 mm")),
    Sketcher.Constraint("DistanceY", -1, 1, 1, 2, Q("13.5 mm")),
    Sketcher.Constraint("DistanceX", 2, 1, 2, 2, Q("29.006136 mm")),
    Sketcher.Constraint("DistanceY", 0, 2, 0, 1, Q("10.015495 mm")),
    Sketcher.Constraint("DistanceX", -1, 1, 1, 3, Q("34.226932 mm")),
])
pocket9 = doc.addObject("PartDesign::Pocket", "Pocket008")
body.addObject(pocket9)
pocket9.Profile = sketch16
pocket9.Type = "ThroughAll"
doc.recompute()

fillet6 = doc.addObject("PartDesign::Fillet", "Fillet005")
body.addObject(fillet6)
fillet6.Base = (pocket9, edges_at(pocket9, [(0, 6.985, 15), (0, 6.985, -15)]))
fillet6.setExpression("Radius", "Params.fillet6_radius")
doc.recompute()

fillet7 = doc.addObject("PartDesign::Fillet", "Fillet006")
body.addObject(fillet7)
fillet7.Base = (fillet6, edges_at(fillet6, [(100, 6.985, 15), (100, 6.985, -15)]))
fillet7.setExpression("Radius", "Params.fillet7_radius")

doc.recompute()
